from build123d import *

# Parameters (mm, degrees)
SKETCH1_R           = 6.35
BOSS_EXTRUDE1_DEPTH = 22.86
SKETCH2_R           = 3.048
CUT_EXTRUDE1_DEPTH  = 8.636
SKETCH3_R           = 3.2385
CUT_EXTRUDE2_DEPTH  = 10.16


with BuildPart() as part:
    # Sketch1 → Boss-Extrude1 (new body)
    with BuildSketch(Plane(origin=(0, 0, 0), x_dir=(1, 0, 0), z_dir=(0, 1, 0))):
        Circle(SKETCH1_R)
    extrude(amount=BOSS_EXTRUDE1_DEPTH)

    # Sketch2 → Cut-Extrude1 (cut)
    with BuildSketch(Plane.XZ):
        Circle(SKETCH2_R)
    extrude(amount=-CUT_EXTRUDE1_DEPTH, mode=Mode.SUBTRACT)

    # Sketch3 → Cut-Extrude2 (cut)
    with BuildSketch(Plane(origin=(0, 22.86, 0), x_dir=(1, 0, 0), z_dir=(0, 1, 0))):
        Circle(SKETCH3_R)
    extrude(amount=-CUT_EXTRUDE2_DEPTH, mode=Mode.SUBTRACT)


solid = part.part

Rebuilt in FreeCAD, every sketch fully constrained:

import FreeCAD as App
import Part
import Sketcher
from FreeCAD import Vector
Q = App.Units.Quantity

doc = App.newDocument("Part")
body = doc.addObject("PartDesign::Body", "Body")

# Sketch on XZ plane
sketch1 = doc.addObject("Sketcher::SketchObject", "Sketch")
body.addObject(sketch1)
sketch1.AttachmentSupport = (doc.XZ_Plane, [""])
sketch1.MapMode = "FlatFace"
sketch1.addGeometry(Part.Circle(Vector(0, 0, 0), Vector(0, 0, 1), 6), False)
sketch1.addConstraint([
    Sketcher.Constraint("Coincident", 0, 3, -1, 1),
    Sketcher.Constraint("Diameter", 0, Q("0.5 in")),
])
pad1 = doc.addObject("PartDesign::Pad", "Pad")
body.addObject(pad1)
pad1.Profile = sketch1
pad1.Length = Q("0.9 in")
pad1.Reversed = True

# Sketch on XZ plane
sketch2 = doc.addObject("Sketcher::SketchObject", "Sketch001")
body.addObject(sketch2)
sketch2.AttachmentSupport = (doc.XZ_Plane, [""])
sketch2.MapMode = "FlatFace"
sketch2.addGeometry(Part.Circle(Vector(0, 0, 0), Vector(0, 0, 1), 3), False)
sketch2.addConstraint([
    Sketcher.Constraint("Coincident", 0, 3, -1, 1),
    Sketcher.Constraint("Diameter", 0, Q("0.24 in")),
])
pocket1 = doc.addObject("PartDesign::Pocket", "Pocket")
body.addObject(pocket1)
pocket1.Profile = sketch2
pocket1.Length = Q("0.34 in")

# Sketch on XZ plane
sketch3 = doc.addObject("Sketcher::SketchObject", "Sketch002")
body.addObject(sketch3)
sketch3.AttachmentSupport = (doc.XZ_Plane, [""])
sketch3.MapMode = "FlatFace"
sketch3.AttachmentOffset = App.Placement(Vector(0, 0, -0.9 * 25.4), App.Rotation())
sketch3.addGeometry(Part.Circle(Vector(0, 0, 0), Vector(0, 0, 1), 3.2), False)
sketch3.addConstraint([
    Sketcher.Constraint("Coincident", 0, 3, -1, 1),
    Sketcher.Constraint("Diameter", 0, Q("0.255 in")),
])
pocket2 = doc.addObject("PartDesign::Pocket", "Pocket001")
body.addObject(pocket2)
pocket2.Profile = sketch3
pocket2.Length = Q("0.4 in")
pocket2.Reversed = True

doc.recompute()
